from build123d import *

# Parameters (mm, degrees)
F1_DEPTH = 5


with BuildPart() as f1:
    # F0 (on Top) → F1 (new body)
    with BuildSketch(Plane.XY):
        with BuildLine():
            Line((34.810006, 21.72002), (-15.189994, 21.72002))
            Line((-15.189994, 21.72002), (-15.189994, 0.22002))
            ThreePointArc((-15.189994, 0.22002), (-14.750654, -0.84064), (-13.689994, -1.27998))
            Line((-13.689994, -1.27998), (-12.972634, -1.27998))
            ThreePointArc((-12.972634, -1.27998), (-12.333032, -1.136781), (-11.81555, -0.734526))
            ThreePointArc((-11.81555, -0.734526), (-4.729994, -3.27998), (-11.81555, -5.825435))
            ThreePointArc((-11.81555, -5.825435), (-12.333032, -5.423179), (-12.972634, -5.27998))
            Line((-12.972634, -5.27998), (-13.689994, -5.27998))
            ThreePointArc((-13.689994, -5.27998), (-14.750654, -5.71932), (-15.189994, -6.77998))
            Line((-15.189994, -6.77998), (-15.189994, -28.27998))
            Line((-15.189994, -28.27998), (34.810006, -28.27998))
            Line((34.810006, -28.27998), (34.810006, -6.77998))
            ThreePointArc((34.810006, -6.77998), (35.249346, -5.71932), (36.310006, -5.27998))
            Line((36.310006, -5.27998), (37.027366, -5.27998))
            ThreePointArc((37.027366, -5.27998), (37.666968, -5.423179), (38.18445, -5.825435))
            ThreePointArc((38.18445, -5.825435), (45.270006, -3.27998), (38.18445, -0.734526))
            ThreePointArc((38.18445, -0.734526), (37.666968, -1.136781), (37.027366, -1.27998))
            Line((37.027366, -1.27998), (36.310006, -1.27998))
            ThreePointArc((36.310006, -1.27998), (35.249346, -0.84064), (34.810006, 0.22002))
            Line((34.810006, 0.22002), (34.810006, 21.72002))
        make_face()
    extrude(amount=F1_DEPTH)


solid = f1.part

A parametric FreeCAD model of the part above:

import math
import FreeCAD as App
import Part
import Sketcher
from FreeCAD import Vector
Q = App.Units.Quantity

doc = App.newDocument("Part")
body = doc.addObject("PartDesign::Body", "Body")

sketch1 = body.newObject("Sketcher::SketchObject", "Sketch")
sketch1.AttachmentSupport = (doc.getObject("XY_Plane"), [""])
sketch1.MapMode = "FlatFace"
sketch1.addGeometry([
    Part.LineSegment(Vector(34.810006, 21.72002, 0), Vector(-15.189994, 21.72002, 0)),
    Part.LineSegment(Vector(-15.189994, 21.72002, 0), Vector(-15.189994, 0.22002, 0)),
    Part.ArcOfCircle(Part.Circle(Vector(-13.689993, 0.220021, 0), Vector(0, 0, 1), 1.500001), math.radians(-179.999978), math.radians(-90.000022)),
    Part.LineSegment(Vector(-13.689994, -1.27998, 0), Vector(-12.972634, -1.27998, 0)),
    Part.ArcOfCircle(Part.Circle(Vector(-12.972635, 0.220024, 0), Vector(0, 0, 1), 1.500004), math.radians(-89.99996), math.radians(-39.521288)),
    Part.ArcOfCircle(Part.Circle(Vector(-8.729994, -3.279981, 0), Vector(0, 0, 1), 4), math.radians(-140.4788), math.radians(140.4788)),
    Part.ArcOfCircle(Part.Circle(Vector(-12.972634, -6.77998, 0), Vector(0, 0, 1), 1.5), math.radians(39.521178), math.radians(89.999988)),
    Part.LineSegment(Vector(-12.972634, -5.27998, 0), Vector(-13.689994, -5.27998, 0)),
    Part.ArcOfCircle(Part.Circle(Vector(-13.689993, -6.779981, 0), Vector(0, 0, 1), 1.500001), math.radians(90.000022), math.radians(179.999978)),
    Part.LineSegment(Vector(-15.189994, -6.77998, 0), Vector(-15.189994, -28.27998, 0)),
    Part.LineSegment(Vector(-15.189994, -28.27998, 0), Vector(34.810006, -28.27998, 0)),
    Part.LineSegment(Vector(34.810006, -28.27998, 0), Vector(34.810006, -6.77998, 0)),
    Part.ArcOfCircle(Part.Circle(Vector(36.310007, -6.779981, 0), Vector(0, 0, 1), 1.500001), math.radians(90.000022), math.radians(179.999978)),
    Part.LineSegment(Vector(36.310006, -5.27998, 0), Vector(37.027366, -5.27998, 0)),
    Part.ArcOfCircle(Part.Circle(Vector(37.027366, -6.77998, 0), Vector(0, 0, 1), 1.5), math.radians(39.521178), math.radians(89.999988)),
    Part.ArcOfCircle(Part.Circle(Vector(41.270006, -3.279981, 0), Vector(0, 0, 1), 4), math.radians(-140.4788), math.radians(140.4788)),
    Part.ArcOfCircle(Part.Circle(Vector(37.027365, 0.220024, 0), Vector(0, 0, 1), 1.500004), math.radians(-89.99996), math.radians(-39.521288)),
    Part.LineSegment(Vector(37.027366, -1.27998, 0), Vector(36.310006, -1.27998, 0)),
    Part.ArcOfCircle(Part.Circle(Vector(36.310007, 0.220021, 0), Vector(0, 0, 1), 1.500001), math.radians(-179.999978), math.radians(-90.000022)),
    Part.LineSegment(Vector(34.810006, 0.22002, 0), Vector(34.810006, 21.72002, 0)),
], False)
sketch1.addConstraint([
    Sketcher.Constraint("Coincident", 0, 2, 1, 1),
    Sketcher.Constraint("Tangent", 1, 2, 2, 1),
    Sketcher.Constraint("Tangent", 2, 2, 3, 1),
    Sketcher.Constraint("Tangent", 3, 2, 4, 1),
    Sketcher.Constraint("Tangent", 4, 2, 5, 2),
    Sketcher.Constraint("Tangent", 5, 1, 6, 1),
    Sketcher.Constraint("Tangent", 6, 2, 7, 1),
    Sketcher.Constraint("Tangent", 7, 2, 8, 1),
    Sketcher.Constraint("Tangent", 8, 2, 9, 1),
    Sketcher.Constraint("Coincident", 9, 2, 10, 1),
    Sketcher.Constraint("Coincident", 10, 2, 11, 1),
    Sketcher.Constraint("Tangent", 11, 2, 12, 2),
    Sketcher.Constraint("Tangent", 12, 1, 13, 1),
    Sketcher.Constraint("Tangent", 13, 2, 14, 2),
    Sketcher.Constraint("Tangent", 14, 1, 15, 1),
    Sketcher.Constraint("Tangent", 15, 2, 16, 2),
    Sketcher.Constraint("Tangent", 16, 1, 17, 1),
    Sketcher.Constraint("Tangent", 17, 2, 18, 2),
    Sketcher.Constraint("Tangent", 18, 1, 19, 1),
    Sketcher.Constraint("Coincident", 19, 2, 0, 1),
    Sketcher.Constraint("Horizontal", 0),
    Sketcher.Constraint("Vertical", 1),
    Sketcher.Constraint("Horizontal", 3),
    Sketcher.Constraint("Horizontal", 7),
    Sketcher.Constraint("Vertical", 9),
    Sketcher.Constraint("Horizontal", 10),
    Sketcher.Constraint("Vertical", 11),
    Sketcher.Constraint("Horizontal", 13),
    Sketcher.Constraint("Horizontal", 17),
    Sketcher.Constraint("Vertical", 19),
    Sketcher.Constraint("Equal", 2, 6),
    Sketcher.Constraint("Equal", 6, 8),
    Sketcher.Constraint("Equal", 8, 12),
    Sketcher.Constraint("Equal", 12, 14),
    Sketcher.Constraint("Equal", 5, 15),
    Sketcher.Constraint("Equal", 4, 16),
    Sketcher.Constraint("Equal", 14, 18),
    Sketcher.Constraint("Horizontal", 8, 3, 12, 3),
    Sketcher.Constraint("Horizontal", 5, 3, 15, 3),
    Sketcher.Constraint("Horizontal", 4, 3, 16, 3),
    Sketcher.Constraint("Vertical", 4, 3, 6, 3),
    Sketcher.Constraint("Vertical", 2, 3, 8, 3),
    Sketcher.Constraint("Vertical", 12, 3, 18, 3),
    Sketcher.Constraint("Vertical", 4, 2, 5, 1),
    Sketcher.Constraint("Equal", 7, 13),
    Sketcher.Constraint("Equal", 1, 9),
    Sketcher.Constraint("Radius", 5, Q("4 mm")),
    Sketcher.Constraint("Radius", 2, Q("1.500001 mm")),
    Sketcher.Constraint("DistanceX", 0, 2, 0, 1, Q("50 mm")),
    Sketcher.Constraint("DistanceY", 1, 2, 1, 1, Q("21.5 mm")),
    Sketcher.Constraint("DistanceY", 6, 3, 2, 3, Q("7.000001 mm")),
    Sketcher.Constraint("DistanceX", 2, 3, 5, 3, Q("4.96 mm")),
    Sketcher.Constraint("DistanceY", -1, 1, 2, 3, Q("0.220021 mm")),
    Sketcher.Constraint("DistanceX", 4, 2, -1, 1, Q("11.81555 mm")),
])
pad1 = body.newObject("PartDesign::Pad", "Pad")
pad1.Profile = sketch1
pad1.Length = 5

doc.recompute()
